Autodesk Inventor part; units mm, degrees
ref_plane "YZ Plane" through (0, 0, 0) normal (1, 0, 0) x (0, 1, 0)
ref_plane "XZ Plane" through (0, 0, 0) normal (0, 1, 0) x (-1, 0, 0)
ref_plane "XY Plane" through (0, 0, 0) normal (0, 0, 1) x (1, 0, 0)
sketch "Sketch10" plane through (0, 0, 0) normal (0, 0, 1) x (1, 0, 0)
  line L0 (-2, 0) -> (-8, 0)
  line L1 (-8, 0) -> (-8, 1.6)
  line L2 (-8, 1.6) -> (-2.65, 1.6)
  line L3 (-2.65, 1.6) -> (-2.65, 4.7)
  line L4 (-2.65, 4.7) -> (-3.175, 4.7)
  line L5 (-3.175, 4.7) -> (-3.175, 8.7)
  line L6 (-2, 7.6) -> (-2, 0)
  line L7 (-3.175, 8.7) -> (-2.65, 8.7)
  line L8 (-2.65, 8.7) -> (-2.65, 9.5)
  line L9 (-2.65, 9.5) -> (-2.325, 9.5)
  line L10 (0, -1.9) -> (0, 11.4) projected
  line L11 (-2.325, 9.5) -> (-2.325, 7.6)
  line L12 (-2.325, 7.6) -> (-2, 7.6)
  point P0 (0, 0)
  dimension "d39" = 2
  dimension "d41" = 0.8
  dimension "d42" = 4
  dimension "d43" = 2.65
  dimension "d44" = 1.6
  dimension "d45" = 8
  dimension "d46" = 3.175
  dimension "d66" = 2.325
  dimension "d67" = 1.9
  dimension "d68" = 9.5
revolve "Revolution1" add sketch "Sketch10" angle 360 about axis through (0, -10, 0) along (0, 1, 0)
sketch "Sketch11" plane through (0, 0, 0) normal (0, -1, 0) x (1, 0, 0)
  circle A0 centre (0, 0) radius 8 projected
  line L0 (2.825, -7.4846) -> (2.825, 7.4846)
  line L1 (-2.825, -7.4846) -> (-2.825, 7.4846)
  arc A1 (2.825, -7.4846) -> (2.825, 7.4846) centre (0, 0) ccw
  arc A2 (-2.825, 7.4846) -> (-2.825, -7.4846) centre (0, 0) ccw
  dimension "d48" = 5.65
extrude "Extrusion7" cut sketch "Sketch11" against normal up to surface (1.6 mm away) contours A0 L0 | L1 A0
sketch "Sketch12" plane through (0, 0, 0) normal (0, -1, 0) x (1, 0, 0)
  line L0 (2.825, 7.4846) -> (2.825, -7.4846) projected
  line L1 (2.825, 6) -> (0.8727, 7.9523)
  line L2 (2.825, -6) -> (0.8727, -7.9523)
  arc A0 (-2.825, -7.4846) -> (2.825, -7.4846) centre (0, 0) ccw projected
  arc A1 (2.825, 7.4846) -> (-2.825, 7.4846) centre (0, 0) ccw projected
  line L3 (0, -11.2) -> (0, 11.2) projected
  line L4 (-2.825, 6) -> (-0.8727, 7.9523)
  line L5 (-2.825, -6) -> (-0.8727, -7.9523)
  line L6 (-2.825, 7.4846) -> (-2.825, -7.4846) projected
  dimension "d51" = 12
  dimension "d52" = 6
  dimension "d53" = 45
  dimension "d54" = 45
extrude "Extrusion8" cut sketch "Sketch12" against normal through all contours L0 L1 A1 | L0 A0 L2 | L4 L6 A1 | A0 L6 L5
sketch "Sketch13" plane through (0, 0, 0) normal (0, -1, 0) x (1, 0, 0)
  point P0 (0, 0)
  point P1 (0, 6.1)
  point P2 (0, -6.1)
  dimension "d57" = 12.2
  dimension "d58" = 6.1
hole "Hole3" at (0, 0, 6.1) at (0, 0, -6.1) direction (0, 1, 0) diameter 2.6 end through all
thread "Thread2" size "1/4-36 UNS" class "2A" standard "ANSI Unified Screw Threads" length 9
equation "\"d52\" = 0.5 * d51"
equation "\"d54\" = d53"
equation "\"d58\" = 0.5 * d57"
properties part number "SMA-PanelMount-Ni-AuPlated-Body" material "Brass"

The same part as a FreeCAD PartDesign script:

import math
import FreeCAD as App
import Part
import Sketcher
from FreeCAD import Vector


def add_polygon(sketch, points):
    """Adds a closed chain of lines whose ends are joined by coincident constraints."""
    first, n = sketch.GeometryCount, len(points)
    for a, b in zip(points, points[1:] + points[:1]):
        sketch.addGeometry(Part.LineSegment(App.Vector(*a, 0), App.Vector(*b, 0)), False)
    for i in range(n):
        sketch.addConstraint(Sketcher.Constraint("Coincident", first + i, 2, first + (i + 1) % n, 1))

doc = App.newDocument("Part")
body = doc.addObject("PartDesign::Body", "Body")

sketch1 = body.newObject("Sketcher::SketchObject", "Sketch")
sketch1.AttachmentSupport = (doc.getObject("XY_Plane"), [""])
sketch1.MapMode = "FlatFace"
add_polygon(sketch1, [(-8, 0), (-2, 0), (-2, 7.6), (-2.325, 7.6), (-2.325, 9.5), (-2.65, 9.5), (-2.65, 8.7), (-3.175, 8.7), (-3.175, 4.7), (-2.65, 4.7), (-2.65, 1.6), (-8, 1.6)])
sketch1.addConstraint([
    Sketcher.Constraint("Horizontal", 0),
    Sketcher.Constraint("Vertical", 1),
    Sketcher.Constraint("Horizontal", 2),
    Sketcher.Constraint("Vertical", 3),
    Sketcher.Constraint("Horizontal", 4),
    Sketcher.Constraint("Vertical", 5),
    Sketcher.Constraint("Horizontal", 6),
    Sketcher.Constraint("Vertical", 7),
    Sketcher.Constraint("Horizontal", 8),
    Sketcher.Constraint("Vertical", 9),
    Sketcher.Constraint("Horizontal", 10),
    Sketcher.Constraint("Vertical", 11),
    Sketcher.Constraint("PointOnObject", 0, 2, -1),
    Sketcher.Constraint("Vertical", 5, 2, 8, 2),
    Sketcher.Constraint("Equal", 2, 4),
    Sketcher.Constraint("DistanceY", 7, 2, 7, 1, 4.0),
    Sketcher.Constraint("DistanceY", 3, 1, 3, 2, 1.9),
    Sketcher.Constraint("DistanceY", 5, 2, 5, 1, 0.8),
    Sketcher.Constraint("DistanceY", 11, 2, 11, 1, 1.6),
    Sketcher.Constraint("DistanceX", 0, 2, -1, 1, 2.0),
    Sketcher.Constraint("DistanceX", 10, 2, -1, 1, 8.0),
    Sketcher.Constraint("DistanceY", -1, 1, 3, 2, 9.5),
    Sketcher.Constraint("DistanceX", 4, 2, -1, 1, 2.65),
    Sketcher.Constraint("DistanceX", 6, 2, -1, 1, 3.175),
])
revolution = body.newObject("PartDesign::Revolution", "Revolution")
revolution.Profile = sketch1
revolution.ReferenceAxis = (sketch1, ["V_Axis"])
revolution.Angle = 360

sketch2 = body.newObject("Sketcher::SketchObject", "Sketch001")
sketch2.AttachmentSupport = (doc.getObject("XZ_Plane"), [""])
sketch2.MapMode = "FlatFace"
sketch2.addGeometry([
    Part.ArcOfCircle(Part.Circle(Vector(0, 0, 0), Vector(0, 0, 1), 8), math.radians(-69.321403), math.radians(69.321403)),
    Part.LineSegment(Vector(2.825, -7.4846, 0), Vector(2.825, 7.4846, 0)),
    Part.LineSegment(Vector(-2.825, -7.4846, 0), Vector(-2.825, 7.4846, 0)),
    Part.ArcOfCircle(Part.Circle(Vector(0, 0, 0), Vector(0, 0, 1), 8), math.radians(110.678597), math.radians(249.321403)),
], False)
sketch2.addConstraint([
    Sketcher.Constraint("Coincident", 0, 1, 1, 1),
    Sketcher.Constraint("Coincident", 1, 2, 0, 2),
    Sketcher.Constraint("Coincident", 2, 1, 3, 2),
    Sketcher.Constraint("Coincident", 3, 1, 2, 2),
    Sketcher.Constraint("Vertical", 1),
    Sketcher.Constraint("Vertical", 2),
    Sketcher.Constraint("Coincident", 0, 3, -1, 1),
    Sketcher.Constraint("Coincident", 3, 3, -1, 1),
    Sketcher.Constraint("Equal", 0, 3),
    Sketcher.Constraint("Horizontal", 0, 1, 2, 1),
    Sketcher.Constraint("Radius", 0, 8.0),
    Sketcher.Constraint("DistanceX", 2, 1, 0, 1, 5.65),
])
pocket1 = body.newObject("PartDesign::Pocket", "Pocket")
pocket1.Profile = sketch2
pocket1.Length = 1.6

sketch3 = body.newObject("Sketcher::SketchObject", "Sketch002")
sketch3.AttachmentSupport = (doc.getObject("XZ_Plane"), [""])
sketch3.MapMode = "FlatFace"
sketch3.addGeometry([
    Part.LineSegment(Vector(2.825, 6, 0), Vector(2.825, 7.4846, 0)),
    Part.ArcOfCircle(Part.Circle(Vector(0, 0, 0), Vector(0, 0, 1), 7.999991), math.radians(69.321403), math.radians(83.737317)),
    Part.LineSegment(Vector(0.8727, 7.9523, 0), Vector(2.825, 6, 0)),
    Part.LineSegment(Vector(2.825, -7.4846, 0), Vector(2.825, -6, 0)),
    Part.LineSegment(Vector(2.825, -6, 0), Vector(0.8727, -7.9523, 0)),
    Part.ArcOfCircle(Part.Circle(Vector(0, 0, 0), Vector(0, 0, 1), 7.999991), math.radians(-83.737317), math.radians(-69.321403)),
    Part.LineSegment(Vector(-2.825, 6, 0), Vector(-0.8727, 7.9523, 0)),
    Part.ArcOfCircle(Part.Circle(Vector(0, 0, 0), Vector(0, 0, 1), 7.999991), math.radians(96.262683), math.radians(110.678597)),
    Part.LineSegment(Vector(-2.825, 7.4846, 0), Vector(-2.825, 6, 0)),
    Part.ArcOfCircle(Part.Circle(Vector(0, 0, 0), Vector(0, 0, 1), 7.999991), math.radians(-110.678597), math.radians(-96.262683)),
    Part.LineSegment(Vector(-0.8727, -7.9523, 0), Vector(-2.825, -6, 0)),
    Part.LineSegment(Vector(-2.825, -6, 0), Vector(-2.825, -7.4846, 0)),
], False)
sketch3.addConstraint([
    Sketcher.Constraint("Coincident", 0, 2, 1, 1),
    Sketcher.Constraint("Coincident", 1, 2, 2, 1),
    Sketcher.Constraint("Coincident", 2, 2, 0, 1),
    Sketcher.Constraint("Coincident", 3, 2, 4, 1),
    Sketcher.Constraint("Coincident", 4, 2, 5, 1),
    Sketcher.Constraint("Coincident", 5, 2, 3, 1),
    Sketcher.Constraint("Coincident", 6, 2, 7, 1),
    Sketcher.Constraint("Coincident", 7, 2, 8, 1),
    Sketcher.Constraint("Coincident", 8, 2, 6, 1),
    Sketcher.Constraint("Coincident", 9, 2, 10, 1),
    Sketcher.Constraint("Coincident", 10, 2, 11, 1),
    Sketcher.Constraint("Coincident", 11, 2, 9, 1),
    Sketcher.Constraint("Vertical", 0),
    Sketcher.Constraint("Vertical", 3),
    Sketcher.Constraint("Vertical", 8),
    Sketcher.Constraint("Vertical", 11),
    Sketcher.Constraint("Coincident", 1, 3, -1, 1),
    Sketcher.Constraint("Coincident", 5, 3, -1, 1),
    Sketcher.Constraint("Coincident", 7, 3, -1, 1),
    Sketcher.Constraint("Coincident", 9, 3, -1, 1),
    Sketcher.Constraint("Equal", 1, 5),
    Sketcher.Constraint("Equal", 5, 7),
    Sketcher.Constraint("Equal", 7, 9),
    Sketcher.Constraint("Symmetric", 3, 2, 8, 2, -1, 1),
    Sketcher.Constraint("Symmetric", 2, 2, 10, 2, -1, 1),
    Sketcher.Constraint("Symmetric", 2, 2, 8, 2, -2),
    Sketcher.Constraint("Perpendicular", 2, 4),
    Sketcher.Constraint("Parallel", 4, 6),
    Sketcher.Constraint("Perpendicular", 6, 10),
    Sketcher.Constraint("Horizontal", 1, 2, 6, 2),
    Sketcher.Constraint("DistanceY", -1, 1, 2, 2, 6.0),
    Sketcher.Constraint("Radius", 1, 8.0),
    Sketcher.Constraint("DistanceX", 7, 2, 0, 2, 5.65),
])
pocket2 = body.newObject("PartDesign::Pocket", "Pocket001")
pocket2.Profile = sketch3
pocket2.Type = "ThroughAll"

sketch4 = body.newObject("Sketcher::SketchObject", "Sketch003")
sketch4.AttachmentSupport = (doc.getObject("XZ_Plane"), [""])
sketch4.MapMode = "FlatFace"
sketch4.addGeometry([
    Part.Circle(Vector(0, 6.1, 0), Vector(0, 0, 1), 1.3),
    Part.Circle(Vector(0, -6.1, 0), Vector(0, 0, 1), 1.3),
], False)
sketch4.addConstraint([
    Sketcher.Constraint("Equal", 0, 1),
    Sketcher.Constraint("Symmetric", 0, 3, 1, 3, -1, 1),
    Sketcher.Constraint("PointOnObject", 0, 3, -2),
    Sketcher.Constraint("Diameter", 0, 2.6),
    Sketcher.Constraint("DistanceY", -1, 1, 0, 3, 6.1),
])
doc.recompute()
hole = body.newObject("PartDesign::Hole", "Hole")
hole.Profile = sketch4
hole.ThreadType = "None"
hole.Diameter = 2.6
hole.DepthType = "ThroughAll"

doc.recompute()
